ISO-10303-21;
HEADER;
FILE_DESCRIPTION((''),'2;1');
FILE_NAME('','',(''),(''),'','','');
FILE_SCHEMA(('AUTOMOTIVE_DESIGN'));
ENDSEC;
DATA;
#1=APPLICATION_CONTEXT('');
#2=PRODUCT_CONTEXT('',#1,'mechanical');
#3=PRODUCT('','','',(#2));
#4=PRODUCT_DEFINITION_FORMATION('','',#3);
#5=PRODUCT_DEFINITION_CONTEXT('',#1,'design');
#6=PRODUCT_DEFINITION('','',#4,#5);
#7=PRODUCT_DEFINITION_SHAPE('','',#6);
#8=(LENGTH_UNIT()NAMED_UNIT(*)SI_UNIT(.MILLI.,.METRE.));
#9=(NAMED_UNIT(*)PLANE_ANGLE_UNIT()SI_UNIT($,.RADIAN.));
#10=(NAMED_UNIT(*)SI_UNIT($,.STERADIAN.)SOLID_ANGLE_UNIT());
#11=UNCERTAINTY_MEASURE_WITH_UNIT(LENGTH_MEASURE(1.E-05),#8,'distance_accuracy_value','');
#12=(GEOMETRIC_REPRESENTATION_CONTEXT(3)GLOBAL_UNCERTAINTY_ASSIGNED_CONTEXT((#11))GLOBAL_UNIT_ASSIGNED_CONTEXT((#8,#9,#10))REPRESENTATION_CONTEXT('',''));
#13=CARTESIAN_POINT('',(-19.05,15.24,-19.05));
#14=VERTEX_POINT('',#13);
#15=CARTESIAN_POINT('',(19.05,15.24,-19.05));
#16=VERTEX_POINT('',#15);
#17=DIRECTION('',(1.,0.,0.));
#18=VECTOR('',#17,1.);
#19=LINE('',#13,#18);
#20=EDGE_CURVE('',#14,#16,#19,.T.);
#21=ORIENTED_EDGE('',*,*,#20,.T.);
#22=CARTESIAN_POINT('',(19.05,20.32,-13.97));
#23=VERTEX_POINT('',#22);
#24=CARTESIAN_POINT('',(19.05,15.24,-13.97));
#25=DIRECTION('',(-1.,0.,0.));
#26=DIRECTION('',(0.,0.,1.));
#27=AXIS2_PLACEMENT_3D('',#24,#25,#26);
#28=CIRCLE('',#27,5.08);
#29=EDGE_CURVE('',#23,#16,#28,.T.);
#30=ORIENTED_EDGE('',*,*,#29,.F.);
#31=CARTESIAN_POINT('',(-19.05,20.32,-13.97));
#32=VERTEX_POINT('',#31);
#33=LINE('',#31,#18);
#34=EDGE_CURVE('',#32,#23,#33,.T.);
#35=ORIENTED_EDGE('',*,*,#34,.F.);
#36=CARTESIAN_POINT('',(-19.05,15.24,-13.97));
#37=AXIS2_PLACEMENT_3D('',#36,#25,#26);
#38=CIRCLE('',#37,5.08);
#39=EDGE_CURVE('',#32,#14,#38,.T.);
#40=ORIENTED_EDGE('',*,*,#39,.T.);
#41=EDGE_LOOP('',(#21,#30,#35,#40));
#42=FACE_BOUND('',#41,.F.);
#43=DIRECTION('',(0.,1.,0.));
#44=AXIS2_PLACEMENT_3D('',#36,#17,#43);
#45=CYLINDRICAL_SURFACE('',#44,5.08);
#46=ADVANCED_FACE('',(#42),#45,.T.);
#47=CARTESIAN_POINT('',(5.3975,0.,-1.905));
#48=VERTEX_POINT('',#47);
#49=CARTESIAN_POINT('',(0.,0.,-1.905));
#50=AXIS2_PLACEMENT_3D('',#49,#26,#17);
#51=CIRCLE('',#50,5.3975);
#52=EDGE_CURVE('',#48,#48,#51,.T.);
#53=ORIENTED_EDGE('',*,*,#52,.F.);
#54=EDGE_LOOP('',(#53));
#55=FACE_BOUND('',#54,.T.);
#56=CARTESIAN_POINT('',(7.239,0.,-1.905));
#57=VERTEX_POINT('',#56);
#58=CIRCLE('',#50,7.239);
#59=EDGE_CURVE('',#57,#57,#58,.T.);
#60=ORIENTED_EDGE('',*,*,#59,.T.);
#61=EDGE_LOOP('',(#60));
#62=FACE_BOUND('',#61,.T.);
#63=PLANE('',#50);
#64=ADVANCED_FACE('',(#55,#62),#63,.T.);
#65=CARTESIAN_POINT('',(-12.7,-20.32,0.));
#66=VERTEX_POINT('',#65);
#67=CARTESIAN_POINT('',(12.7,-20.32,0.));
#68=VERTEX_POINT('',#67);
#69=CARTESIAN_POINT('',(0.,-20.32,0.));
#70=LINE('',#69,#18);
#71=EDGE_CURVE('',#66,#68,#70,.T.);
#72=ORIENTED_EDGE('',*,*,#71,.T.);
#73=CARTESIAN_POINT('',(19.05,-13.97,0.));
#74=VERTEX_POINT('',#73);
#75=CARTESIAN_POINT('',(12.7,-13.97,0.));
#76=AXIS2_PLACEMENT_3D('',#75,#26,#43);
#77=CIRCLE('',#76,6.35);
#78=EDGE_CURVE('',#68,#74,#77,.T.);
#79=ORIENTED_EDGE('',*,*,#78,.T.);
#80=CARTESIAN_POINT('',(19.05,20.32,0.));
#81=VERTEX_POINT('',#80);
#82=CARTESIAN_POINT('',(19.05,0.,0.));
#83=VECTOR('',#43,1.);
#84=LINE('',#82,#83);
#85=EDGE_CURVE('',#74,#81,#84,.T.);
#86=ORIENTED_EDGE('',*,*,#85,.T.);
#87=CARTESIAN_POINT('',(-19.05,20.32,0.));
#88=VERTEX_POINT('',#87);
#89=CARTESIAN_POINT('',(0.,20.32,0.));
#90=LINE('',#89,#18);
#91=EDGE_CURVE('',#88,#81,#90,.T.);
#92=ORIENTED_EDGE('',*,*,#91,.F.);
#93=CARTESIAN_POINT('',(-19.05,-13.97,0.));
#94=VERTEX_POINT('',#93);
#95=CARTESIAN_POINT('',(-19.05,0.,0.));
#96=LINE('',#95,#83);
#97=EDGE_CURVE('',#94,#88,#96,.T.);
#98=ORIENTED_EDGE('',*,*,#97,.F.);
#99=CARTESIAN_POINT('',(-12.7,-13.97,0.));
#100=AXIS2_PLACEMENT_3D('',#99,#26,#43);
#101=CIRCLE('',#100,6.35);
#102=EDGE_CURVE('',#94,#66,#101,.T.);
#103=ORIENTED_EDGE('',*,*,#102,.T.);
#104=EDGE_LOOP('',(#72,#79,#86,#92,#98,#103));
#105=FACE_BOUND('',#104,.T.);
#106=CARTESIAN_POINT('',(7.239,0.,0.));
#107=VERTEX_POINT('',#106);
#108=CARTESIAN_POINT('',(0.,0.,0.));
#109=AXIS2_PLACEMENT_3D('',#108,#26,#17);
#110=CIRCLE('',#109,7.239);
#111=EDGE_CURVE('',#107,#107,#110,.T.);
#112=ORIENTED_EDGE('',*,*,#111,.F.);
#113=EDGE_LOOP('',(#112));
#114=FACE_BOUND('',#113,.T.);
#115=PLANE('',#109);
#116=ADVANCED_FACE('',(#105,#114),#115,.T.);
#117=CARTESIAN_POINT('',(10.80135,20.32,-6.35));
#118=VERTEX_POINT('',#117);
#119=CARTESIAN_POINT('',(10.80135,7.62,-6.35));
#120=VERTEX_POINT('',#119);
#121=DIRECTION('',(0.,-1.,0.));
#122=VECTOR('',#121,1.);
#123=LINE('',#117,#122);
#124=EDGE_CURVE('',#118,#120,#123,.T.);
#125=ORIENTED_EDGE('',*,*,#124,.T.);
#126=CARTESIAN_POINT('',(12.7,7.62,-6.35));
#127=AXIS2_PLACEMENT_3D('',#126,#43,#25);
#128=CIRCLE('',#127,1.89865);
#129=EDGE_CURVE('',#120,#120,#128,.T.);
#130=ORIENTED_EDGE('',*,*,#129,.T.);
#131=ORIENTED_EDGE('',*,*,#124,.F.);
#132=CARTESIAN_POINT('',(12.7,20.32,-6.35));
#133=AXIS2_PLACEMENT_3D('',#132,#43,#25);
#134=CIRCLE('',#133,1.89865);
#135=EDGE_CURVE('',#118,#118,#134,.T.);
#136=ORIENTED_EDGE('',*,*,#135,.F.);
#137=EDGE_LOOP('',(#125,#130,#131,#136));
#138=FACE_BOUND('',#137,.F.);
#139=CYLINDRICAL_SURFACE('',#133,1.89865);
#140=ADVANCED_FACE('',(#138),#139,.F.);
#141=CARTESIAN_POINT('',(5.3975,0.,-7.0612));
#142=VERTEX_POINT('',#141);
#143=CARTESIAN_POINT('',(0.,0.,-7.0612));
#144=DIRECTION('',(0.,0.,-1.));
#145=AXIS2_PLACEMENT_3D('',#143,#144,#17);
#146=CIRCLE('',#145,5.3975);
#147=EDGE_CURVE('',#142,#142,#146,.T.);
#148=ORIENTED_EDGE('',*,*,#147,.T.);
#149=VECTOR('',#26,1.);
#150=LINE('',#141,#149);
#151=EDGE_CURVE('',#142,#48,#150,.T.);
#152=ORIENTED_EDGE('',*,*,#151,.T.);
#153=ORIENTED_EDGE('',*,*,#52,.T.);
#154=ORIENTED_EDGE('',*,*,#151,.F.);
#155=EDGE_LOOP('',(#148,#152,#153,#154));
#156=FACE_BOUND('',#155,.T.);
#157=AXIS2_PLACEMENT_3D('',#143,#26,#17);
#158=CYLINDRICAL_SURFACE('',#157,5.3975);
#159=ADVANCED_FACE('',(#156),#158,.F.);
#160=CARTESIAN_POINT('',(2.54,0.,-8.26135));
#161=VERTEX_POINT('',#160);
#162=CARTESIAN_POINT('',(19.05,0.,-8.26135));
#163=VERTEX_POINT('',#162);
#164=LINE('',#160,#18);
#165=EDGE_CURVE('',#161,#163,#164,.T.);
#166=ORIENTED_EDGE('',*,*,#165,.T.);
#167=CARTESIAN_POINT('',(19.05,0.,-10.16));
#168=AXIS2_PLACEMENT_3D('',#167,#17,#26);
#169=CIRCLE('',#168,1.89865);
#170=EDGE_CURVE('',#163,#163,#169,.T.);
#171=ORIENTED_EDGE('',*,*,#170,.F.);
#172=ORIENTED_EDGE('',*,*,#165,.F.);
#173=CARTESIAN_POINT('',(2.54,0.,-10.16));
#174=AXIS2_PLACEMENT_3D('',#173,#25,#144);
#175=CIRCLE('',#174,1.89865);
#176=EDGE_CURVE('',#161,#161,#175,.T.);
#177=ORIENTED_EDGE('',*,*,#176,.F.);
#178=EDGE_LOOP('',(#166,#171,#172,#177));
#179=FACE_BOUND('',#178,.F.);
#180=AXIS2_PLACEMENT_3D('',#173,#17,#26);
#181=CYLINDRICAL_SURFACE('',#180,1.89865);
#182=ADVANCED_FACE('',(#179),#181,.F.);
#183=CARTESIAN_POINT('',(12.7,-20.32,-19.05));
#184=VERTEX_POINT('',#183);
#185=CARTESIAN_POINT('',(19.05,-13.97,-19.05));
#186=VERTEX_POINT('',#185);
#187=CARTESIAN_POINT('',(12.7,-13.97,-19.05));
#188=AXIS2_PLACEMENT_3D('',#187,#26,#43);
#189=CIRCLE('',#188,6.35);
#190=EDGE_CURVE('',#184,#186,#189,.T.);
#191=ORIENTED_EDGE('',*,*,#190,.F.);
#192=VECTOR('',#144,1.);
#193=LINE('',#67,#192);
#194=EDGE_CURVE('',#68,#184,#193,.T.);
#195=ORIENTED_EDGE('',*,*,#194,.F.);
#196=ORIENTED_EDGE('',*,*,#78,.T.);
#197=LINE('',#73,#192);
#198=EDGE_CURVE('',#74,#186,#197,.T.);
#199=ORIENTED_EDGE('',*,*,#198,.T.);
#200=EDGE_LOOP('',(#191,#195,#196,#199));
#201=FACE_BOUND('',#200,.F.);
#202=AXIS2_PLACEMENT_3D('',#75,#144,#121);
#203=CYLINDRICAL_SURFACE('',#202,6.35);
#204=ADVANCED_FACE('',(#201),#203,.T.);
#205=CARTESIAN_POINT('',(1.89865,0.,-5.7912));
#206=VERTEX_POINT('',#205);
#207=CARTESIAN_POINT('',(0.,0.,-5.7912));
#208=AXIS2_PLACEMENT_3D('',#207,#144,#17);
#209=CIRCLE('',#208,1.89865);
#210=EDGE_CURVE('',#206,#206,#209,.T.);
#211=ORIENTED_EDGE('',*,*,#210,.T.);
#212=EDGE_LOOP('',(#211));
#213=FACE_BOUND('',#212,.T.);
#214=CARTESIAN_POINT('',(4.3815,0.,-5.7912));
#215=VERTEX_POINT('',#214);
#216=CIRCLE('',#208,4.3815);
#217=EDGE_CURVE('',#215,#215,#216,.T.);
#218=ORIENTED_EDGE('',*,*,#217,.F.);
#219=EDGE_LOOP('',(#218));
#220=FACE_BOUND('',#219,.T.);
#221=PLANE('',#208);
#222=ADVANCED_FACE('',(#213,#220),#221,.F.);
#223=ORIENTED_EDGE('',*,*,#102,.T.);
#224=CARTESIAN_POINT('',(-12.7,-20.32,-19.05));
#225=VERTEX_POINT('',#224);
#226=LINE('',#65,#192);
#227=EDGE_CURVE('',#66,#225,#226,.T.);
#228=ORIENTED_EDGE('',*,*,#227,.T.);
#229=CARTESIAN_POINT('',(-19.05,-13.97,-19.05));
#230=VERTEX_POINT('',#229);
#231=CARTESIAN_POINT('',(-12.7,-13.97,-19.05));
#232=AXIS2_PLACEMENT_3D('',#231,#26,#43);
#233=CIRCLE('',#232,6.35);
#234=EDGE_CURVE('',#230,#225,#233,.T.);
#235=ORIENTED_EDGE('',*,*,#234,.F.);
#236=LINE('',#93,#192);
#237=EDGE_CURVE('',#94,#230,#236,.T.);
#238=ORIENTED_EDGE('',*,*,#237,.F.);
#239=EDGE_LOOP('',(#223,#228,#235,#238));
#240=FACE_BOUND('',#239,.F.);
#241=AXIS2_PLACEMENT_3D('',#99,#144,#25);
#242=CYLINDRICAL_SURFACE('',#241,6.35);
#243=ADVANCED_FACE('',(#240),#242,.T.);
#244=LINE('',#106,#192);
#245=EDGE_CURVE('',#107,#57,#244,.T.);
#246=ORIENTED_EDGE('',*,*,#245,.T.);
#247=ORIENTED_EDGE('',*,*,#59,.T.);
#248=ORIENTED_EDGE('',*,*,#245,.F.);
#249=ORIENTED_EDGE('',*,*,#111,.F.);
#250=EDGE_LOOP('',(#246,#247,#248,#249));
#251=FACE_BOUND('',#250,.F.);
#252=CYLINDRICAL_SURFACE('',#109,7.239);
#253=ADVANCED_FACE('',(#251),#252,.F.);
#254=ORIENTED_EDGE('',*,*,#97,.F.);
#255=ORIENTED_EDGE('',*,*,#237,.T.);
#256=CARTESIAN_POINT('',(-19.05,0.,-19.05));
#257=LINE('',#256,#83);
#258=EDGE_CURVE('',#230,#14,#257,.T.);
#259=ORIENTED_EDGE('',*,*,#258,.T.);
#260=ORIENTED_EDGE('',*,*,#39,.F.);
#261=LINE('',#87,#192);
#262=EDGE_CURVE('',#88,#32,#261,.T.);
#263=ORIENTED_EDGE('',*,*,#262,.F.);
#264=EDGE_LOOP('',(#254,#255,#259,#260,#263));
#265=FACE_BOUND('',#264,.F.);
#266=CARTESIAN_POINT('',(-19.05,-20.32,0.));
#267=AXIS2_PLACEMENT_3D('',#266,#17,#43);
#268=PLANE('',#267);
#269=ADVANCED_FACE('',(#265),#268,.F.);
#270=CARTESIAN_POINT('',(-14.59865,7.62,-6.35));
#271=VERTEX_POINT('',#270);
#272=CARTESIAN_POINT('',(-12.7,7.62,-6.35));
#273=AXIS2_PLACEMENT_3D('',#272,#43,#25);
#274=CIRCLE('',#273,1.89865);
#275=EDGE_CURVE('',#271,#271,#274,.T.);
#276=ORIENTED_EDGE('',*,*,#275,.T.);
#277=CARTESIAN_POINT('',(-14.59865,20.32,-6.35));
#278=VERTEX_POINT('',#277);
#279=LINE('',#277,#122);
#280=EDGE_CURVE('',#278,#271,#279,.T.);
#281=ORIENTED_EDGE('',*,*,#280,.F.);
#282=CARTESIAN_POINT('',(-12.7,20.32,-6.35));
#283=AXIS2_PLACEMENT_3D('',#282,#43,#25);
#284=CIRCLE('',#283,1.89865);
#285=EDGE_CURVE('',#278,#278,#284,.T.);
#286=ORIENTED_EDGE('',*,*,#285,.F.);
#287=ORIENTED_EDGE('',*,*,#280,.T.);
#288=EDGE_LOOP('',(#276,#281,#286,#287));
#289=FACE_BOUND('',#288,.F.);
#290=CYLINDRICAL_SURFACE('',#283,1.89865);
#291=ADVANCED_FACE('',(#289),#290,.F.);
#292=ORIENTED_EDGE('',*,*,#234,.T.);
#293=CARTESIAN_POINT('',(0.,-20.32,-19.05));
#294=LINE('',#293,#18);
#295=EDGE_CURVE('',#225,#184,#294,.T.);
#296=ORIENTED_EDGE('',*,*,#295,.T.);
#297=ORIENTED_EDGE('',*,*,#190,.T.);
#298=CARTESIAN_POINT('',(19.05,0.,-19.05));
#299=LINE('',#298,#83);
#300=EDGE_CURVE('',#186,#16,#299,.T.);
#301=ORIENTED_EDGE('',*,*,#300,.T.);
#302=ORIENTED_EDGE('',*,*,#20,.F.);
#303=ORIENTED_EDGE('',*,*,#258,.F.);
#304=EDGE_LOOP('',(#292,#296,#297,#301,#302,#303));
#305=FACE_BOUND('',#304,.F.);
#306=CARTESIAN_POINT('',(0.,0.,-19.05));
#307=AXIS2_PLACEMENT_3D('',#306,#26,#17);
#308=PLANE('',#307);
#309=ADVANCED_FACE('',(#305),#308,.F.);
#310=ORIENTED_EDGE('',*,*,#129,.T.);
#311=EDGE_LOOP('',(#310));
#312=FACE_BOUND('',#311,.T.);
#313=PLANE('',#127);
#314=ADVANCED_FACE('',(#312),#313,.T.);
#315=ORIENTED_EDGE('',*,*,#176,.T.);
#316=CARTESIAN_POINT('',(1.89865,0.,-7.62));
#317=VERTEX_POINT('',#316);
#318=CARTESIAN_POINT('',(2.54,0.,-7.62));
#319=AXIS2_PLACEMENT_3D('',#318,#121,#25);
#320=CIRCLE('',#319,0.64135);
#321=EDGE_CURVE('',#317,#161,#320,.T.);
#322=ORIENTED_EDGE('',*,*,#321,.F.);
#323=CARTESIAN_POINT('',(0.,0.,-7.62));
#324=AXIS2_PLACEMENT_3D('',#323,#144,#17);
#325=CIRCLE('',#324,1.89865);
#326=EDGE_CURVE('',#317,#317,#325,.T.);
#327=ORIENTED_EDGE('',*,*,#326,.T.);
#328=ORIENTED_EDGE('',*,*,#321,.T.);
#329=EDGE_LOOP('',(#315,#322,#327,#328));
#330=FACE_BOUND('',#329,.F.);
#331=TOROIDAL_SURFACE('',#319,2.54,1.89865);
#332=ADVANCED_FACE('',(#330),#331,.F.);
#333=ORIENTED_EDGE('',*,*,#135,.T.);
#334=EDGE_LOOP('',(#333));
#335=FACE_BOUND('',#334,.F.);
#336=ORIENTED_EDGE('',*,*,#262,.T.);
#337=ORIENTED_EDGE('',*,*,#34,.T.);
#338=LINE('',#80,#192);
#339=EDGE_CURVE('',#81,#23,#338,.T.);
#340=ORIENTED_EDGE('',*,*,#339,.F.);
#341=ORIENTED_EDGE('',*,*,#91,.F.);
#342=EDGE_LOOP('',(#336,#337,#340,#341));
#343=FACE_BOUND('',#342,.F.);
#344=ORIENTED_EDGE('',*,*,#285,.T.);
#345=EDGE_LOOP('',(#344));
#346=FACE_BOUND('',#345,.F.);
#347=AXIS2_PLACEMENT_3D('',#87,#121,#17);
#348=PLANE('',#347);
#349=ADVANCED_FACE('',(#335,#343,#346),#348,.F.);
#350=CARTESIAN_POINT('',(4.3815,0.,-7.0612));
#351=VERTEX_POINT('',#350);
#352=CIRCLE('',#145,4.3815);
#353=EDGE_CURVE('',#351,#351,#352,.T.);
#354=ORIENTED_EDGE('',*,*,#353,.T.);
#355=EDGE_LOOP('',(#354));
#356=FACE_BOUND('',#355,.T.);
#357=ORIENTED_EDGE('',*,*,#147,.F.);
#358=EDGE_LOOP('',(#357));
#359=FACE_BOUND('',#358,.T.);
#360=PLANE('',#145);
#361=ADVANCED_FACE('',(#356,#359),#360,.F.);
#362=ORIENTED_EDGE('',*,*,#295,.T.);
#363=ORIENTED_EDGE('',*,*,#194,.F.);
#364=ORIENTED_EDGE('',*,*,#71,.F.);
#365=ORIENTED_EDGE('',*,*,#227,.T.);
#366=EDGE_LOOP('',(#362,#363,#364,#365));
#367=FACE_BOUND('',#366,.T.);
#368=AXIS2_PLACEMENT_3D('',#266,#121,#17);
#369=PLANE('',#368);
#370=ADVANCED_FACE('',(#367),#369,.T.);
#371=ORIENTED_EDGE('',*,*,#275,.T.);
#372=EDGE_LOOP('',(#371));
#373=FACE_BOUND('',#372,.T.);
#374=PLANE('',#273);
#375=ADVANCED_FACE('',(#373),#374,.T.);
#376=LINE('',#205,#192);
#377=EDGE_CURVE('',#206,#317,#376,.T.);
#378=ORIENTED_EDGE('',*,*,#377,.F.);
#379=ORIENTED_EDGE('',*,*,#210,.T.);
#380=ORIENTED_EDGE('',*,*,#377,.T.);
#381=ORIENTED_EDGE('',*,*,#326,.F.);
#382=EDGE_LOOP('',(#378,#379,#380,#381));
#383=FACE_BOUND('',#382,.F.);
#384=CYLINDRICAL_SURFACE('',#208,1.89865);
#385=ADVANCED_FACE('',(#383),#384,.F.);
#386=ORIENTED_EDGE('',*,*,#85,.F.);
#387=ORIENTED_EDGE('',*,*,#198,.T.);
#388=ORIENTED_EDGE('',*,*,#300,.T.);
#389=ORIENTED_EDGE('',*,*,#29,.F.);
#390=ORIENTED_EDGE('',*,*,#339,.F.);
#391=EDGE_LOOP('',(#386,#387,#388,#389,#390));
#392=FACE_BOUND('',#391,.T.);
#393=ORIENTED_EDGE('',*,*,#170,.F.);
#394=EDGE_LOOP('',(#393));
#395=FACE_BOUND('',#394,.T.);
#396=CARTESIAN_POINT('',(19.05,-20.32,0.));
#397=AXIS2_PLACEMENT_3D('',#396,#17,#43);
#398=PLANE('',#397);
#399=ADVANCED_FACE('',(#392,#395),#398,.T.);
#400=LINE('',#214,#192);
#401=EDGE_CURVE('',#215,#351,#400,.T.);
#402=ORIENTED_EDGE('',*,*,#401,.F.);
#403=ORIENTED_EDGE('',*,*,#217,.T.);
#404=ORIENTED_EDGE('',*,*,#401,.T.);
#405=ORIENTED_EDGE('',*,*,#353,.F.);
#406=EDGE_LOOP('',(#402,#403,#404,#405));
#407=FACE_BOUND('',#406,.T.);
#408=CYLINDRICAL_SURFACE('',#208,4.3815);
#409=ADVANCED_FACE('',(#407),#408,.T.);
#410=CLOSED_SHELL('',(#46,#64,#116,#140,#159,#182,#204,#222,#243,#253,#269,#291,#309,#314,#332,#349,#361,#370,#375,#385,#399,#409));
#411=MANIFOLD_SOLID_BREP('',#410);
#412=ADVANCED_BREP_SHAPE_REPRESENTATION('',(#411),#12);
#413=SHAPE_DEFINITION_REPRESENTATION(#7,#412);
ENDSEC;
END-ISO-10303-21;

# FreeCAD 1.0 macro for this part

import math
import FreeCAD as App
import Part
import Sketcher

V = App.Vector
Q = App.Units.Quantity


def edges_at(feature, points):
    """Names of the edges that pass closest to the given points."""
    edges = feature.Shape.Edges
    near = lambda p: min(range(len(edges)), key=lambda i: edges[i].distToShape(Part.Vertex(*p))[0])
    return sorted({f"Edge{near(p) + 1}" for p in points})


def add_polygon(sketch, points):
    """Adds a closed chain of lines whose ends are joined by coincident constraints."""
    first, n = sketch.GeometryCount, len(points)
    for a, b in zip(points, points[1:] + points[:1]):
        sketch.addGeometry(Part.LineSegment(App.Vector(*a, 0), App.Vector(*b, 0)), False)
    for i in range(n):
        sketch.addConstraint(Sketcher.Constraint("Coincident", first + i, 2, first + (i + 1) % n, 1))

doc = App.newDocument("Part")
body = doc.addObject("PartDesign::Body", "Body")

# Sketch on XY plane
sketch1 = body.newObject("Sketcher::SketchObject", "Sketch")
sketch1.AttachmentSupport = (doc.getObject("XY_Plane"), [""])
sketch1.MapMode = "FlatFace"
add_polygon(sketch1, [(-19, 20), (-19, -20), (19, -20), (19, 20)])  # lines 0-3
sketch1.addConstraint([
    Sketcher.Constraint("Vertical", 0),
    Sketcher.Constraint("Horizontal", 1),
    Sketcher.Constraint("Vertical", 2),
    Sketcher.Constraint("Horizontal", 3),
    Sketcher.Constraint("Symmetric", 0, 2, 2, 2, -1, 1),
    Sketcher.Constraint("DistanceX", 1, 1, 1, 2, Q("1.5 in")),
    Sketcher.Constraint("DistanceY", 0, 2, 0, 1, Q("1.6 in")),
])
pad1 = body.newObject("PartDesign::Pad", "Pad")
pad1.Profile = sketch1
pad1.Length = Q("0.75 in")
pad1.Reversed = True

# Sketch on XZ plane
sketch2 = body.newObject("Sketcher::SketchObject", "Sketch001")
sketch2.AttachmentSupport = (doc.getObject("XZ_Plane"), [""])
sketch2.MapMode = "FlatFace"
add_polygon(sketch2, [(5.4, 0), (0, 0), (0, -5.8), (4.4, -5.8), (4.4, -7.1), (5.4, -7.1)])  # lines 0-5
sketch2.addConstraint([
    Sketcher.Constraint("Horizontal", 0),
    Sketcher.Constraint("Vertical", 1),
    Sketcher.Constraint("Horizontal", 2),
    Sketcher.Constraint("Vertical", 3),
    Sketcher.Constraint("Horizontal", 4),
    Sketcher.Constraint("Vertical", 5),
    Sketcher.Constraint("Coincident", 0, 2, -1, 1),
    Sketcher.Constraint("DistanceX", 4, 1, 4, 2, Q("0.04 in")),
    Sketcher.Constraint("DistanceY", 3, 2, 3, 1, Q("0.05 in")),
    Sketcher.Constraint("DistanceY", 1, 2, 1, 1, Q("0.228 in")),
    Sketcher.Constraint("DistanceX", 0, 2, 0, 1, Q("0.2125 in")),
])
groove = body.newObject("PartDesign::Groove", "Groove")
groove.Profile = sketch2
groove.ReferenceAxis = (sketch2, ["V_Axis"])
groove.Angle = 360

# Sketch on XY plane
sketch3 = body.newObject("Sketcher::SketchObject", "Sketch002")
sketch3.AttachmentSupport = (doc.getObject("XY_Plane"), [""])
sketch3.MapMode = "FlatFace"
sketch3.addGeometry(Part.Circle(V(0, 0, 0), V(0, 0, 1), 7), False)
sketch3.addConstraint([
    Sketcher.Constraint("Coincident", 0, 3, -1, 1),
    Sketcher.Constraint("Diameter", 0, Q("0.57 in")),
])
pocket1 = body.newObject("PartDesign::Pocket", "Pocket")
pocket1.Profile = sketch3
pocket1.Length = Q("0.075 in")
doc.recompute()

fillet = body.newObject("PartDesign::Fillet", "Fillet")
fillet.Base = (pocket1, edges_at(pocket1, [(-19.05, -20.32, -9.525), (19.05, -20.32, -9.525)]))
fillet.Radius = Q("0.25 in")

# Sketch on XY plane
sketch4 = body.newObject("Sketcher::SketchObject", "Sketch003")
sketch4.AttachmentSupport = (doc.getObject("XY_Plane"), [""])
sketch4.MapMode = "FlatFace"
sketch4.AttachmentOffset = App.Placement(V(0, 0, -0.228 * 25.4), App.Rotation())
sketch4.addGeometry(Part.Circle(V(0, 0, 0), V(0, 0, 1), 1.9), False)
sketch4.addConstraint([
    Sketcher.Constraint("Coincident", 0, 3, -1, 1),
    Sketcher.Constraint("Diameter", 0, Q("0.1495 in")),
])

# Sketch on XZ plane
sketch5 = body.newObject("Sketcher::SketchObject", "Sketch004")
sketch5.AttachmentSupport = (doc.getObject("XZ_Plane"), [""])
sketch5.MapMode = "FlatFace"
sketch5.addGeometry([
    Part.LineSegment(V(0, -5.8, 0), V(0, -7.6, 0)),
    Part.ArcOfCircle(Part.Circle(V(2.5, -7.6, 0), V(0, 0, 1), 2.5), math.radians(180), math.radians(270)),
    Part.LineSegment(V(2.5, -10.2, 0), V(19.1, -10.2, 0)),
], False)
sketch5.addConstraint([
    Sketcher.Constraint("Tangent", 0, 2, 1, 1),
    Sketcher.Constraint("Tangent", 1, 2, 2, 1),
    Sketcher.Constraint("Vertical", 0),
    Sketcher.Constraint("Horizontal", 2),
    Sketcher.Constraint("PointOnObject", 0, 1, -2),
    Sketcher.Constraint("Radius", 1, Q("0.1 in")),
    Sketcher.Constraint("DistanceX", 2, 1, 2, 2, Q("0.65 in")),
    Sketcher.Constraint("DistanceY", 1, 3, -1, 1, Q("0.3 in")),
    Sketcher.Constraint("DistanceY", 0, 2, 0, 1, Q("0.072 in")),
])
doc.recompute()

subtractivepipe = body.newObject("PartDesign::SubtractivePipe", "SubtractivePipe")
subtractivepipe.Profile = sketch4
subtractivepipe.Spine = (sketch5, ["Edge1", "Edge2", "Edge3"])

# Sketch on XZ plane
sketch6 = body.newObject("Sketcher::SketchObject", "Sketch005")
sketch6.AttachmentSupport = (doc.getObject("XZ_Plane"), [""])
sketch6.MapMode = "FlatFace"
sketch6.AttachmentOffset = App.Placement(V(0, 0, -0.8 * 25.4), App.Rotation())
sketch6.addGeometry([
    Part.Circle(V(12.7, -6.3, 0), V(0, 0, 1), 1.9),
    Part.Circle(V(-12.7, -6.3, 0), V(0, 0, 1), 1.9),
], False)
sketch6.addConstraint([
    Sketcher.Constraint("Equal", 0, 1),
    Sketcher.Constraint("Symmetric", 0, 3, 1, 3, -2),
    Sketcher.Constraint("DistanceX", 1, 3, 0, 3, Q("1 in")),
    Sketcher.Constraint("Diameter", 0, Q("0.1495 in")),
    Sketcher.Constraint("DistanceY", 0, 3, -1, 1, Q("0.25 in")),
])
pocket2 = body.newObject("PartDesign::Pocket", "Pocket001")
pocket2.Profile = sketch6
pocket2.Length = Q("0.5 in")
pocket2.Reversed = True
doc.recompute()

fillet2 = body.newObject("PartDesign::Fillet", "Fillet001")
fillet2.Base = (pocket2, edges_at(pocket2, [(0, 20.32, -19.05)]))
fillet2.Radius = Q("0.2 in")

doc.recompute()
